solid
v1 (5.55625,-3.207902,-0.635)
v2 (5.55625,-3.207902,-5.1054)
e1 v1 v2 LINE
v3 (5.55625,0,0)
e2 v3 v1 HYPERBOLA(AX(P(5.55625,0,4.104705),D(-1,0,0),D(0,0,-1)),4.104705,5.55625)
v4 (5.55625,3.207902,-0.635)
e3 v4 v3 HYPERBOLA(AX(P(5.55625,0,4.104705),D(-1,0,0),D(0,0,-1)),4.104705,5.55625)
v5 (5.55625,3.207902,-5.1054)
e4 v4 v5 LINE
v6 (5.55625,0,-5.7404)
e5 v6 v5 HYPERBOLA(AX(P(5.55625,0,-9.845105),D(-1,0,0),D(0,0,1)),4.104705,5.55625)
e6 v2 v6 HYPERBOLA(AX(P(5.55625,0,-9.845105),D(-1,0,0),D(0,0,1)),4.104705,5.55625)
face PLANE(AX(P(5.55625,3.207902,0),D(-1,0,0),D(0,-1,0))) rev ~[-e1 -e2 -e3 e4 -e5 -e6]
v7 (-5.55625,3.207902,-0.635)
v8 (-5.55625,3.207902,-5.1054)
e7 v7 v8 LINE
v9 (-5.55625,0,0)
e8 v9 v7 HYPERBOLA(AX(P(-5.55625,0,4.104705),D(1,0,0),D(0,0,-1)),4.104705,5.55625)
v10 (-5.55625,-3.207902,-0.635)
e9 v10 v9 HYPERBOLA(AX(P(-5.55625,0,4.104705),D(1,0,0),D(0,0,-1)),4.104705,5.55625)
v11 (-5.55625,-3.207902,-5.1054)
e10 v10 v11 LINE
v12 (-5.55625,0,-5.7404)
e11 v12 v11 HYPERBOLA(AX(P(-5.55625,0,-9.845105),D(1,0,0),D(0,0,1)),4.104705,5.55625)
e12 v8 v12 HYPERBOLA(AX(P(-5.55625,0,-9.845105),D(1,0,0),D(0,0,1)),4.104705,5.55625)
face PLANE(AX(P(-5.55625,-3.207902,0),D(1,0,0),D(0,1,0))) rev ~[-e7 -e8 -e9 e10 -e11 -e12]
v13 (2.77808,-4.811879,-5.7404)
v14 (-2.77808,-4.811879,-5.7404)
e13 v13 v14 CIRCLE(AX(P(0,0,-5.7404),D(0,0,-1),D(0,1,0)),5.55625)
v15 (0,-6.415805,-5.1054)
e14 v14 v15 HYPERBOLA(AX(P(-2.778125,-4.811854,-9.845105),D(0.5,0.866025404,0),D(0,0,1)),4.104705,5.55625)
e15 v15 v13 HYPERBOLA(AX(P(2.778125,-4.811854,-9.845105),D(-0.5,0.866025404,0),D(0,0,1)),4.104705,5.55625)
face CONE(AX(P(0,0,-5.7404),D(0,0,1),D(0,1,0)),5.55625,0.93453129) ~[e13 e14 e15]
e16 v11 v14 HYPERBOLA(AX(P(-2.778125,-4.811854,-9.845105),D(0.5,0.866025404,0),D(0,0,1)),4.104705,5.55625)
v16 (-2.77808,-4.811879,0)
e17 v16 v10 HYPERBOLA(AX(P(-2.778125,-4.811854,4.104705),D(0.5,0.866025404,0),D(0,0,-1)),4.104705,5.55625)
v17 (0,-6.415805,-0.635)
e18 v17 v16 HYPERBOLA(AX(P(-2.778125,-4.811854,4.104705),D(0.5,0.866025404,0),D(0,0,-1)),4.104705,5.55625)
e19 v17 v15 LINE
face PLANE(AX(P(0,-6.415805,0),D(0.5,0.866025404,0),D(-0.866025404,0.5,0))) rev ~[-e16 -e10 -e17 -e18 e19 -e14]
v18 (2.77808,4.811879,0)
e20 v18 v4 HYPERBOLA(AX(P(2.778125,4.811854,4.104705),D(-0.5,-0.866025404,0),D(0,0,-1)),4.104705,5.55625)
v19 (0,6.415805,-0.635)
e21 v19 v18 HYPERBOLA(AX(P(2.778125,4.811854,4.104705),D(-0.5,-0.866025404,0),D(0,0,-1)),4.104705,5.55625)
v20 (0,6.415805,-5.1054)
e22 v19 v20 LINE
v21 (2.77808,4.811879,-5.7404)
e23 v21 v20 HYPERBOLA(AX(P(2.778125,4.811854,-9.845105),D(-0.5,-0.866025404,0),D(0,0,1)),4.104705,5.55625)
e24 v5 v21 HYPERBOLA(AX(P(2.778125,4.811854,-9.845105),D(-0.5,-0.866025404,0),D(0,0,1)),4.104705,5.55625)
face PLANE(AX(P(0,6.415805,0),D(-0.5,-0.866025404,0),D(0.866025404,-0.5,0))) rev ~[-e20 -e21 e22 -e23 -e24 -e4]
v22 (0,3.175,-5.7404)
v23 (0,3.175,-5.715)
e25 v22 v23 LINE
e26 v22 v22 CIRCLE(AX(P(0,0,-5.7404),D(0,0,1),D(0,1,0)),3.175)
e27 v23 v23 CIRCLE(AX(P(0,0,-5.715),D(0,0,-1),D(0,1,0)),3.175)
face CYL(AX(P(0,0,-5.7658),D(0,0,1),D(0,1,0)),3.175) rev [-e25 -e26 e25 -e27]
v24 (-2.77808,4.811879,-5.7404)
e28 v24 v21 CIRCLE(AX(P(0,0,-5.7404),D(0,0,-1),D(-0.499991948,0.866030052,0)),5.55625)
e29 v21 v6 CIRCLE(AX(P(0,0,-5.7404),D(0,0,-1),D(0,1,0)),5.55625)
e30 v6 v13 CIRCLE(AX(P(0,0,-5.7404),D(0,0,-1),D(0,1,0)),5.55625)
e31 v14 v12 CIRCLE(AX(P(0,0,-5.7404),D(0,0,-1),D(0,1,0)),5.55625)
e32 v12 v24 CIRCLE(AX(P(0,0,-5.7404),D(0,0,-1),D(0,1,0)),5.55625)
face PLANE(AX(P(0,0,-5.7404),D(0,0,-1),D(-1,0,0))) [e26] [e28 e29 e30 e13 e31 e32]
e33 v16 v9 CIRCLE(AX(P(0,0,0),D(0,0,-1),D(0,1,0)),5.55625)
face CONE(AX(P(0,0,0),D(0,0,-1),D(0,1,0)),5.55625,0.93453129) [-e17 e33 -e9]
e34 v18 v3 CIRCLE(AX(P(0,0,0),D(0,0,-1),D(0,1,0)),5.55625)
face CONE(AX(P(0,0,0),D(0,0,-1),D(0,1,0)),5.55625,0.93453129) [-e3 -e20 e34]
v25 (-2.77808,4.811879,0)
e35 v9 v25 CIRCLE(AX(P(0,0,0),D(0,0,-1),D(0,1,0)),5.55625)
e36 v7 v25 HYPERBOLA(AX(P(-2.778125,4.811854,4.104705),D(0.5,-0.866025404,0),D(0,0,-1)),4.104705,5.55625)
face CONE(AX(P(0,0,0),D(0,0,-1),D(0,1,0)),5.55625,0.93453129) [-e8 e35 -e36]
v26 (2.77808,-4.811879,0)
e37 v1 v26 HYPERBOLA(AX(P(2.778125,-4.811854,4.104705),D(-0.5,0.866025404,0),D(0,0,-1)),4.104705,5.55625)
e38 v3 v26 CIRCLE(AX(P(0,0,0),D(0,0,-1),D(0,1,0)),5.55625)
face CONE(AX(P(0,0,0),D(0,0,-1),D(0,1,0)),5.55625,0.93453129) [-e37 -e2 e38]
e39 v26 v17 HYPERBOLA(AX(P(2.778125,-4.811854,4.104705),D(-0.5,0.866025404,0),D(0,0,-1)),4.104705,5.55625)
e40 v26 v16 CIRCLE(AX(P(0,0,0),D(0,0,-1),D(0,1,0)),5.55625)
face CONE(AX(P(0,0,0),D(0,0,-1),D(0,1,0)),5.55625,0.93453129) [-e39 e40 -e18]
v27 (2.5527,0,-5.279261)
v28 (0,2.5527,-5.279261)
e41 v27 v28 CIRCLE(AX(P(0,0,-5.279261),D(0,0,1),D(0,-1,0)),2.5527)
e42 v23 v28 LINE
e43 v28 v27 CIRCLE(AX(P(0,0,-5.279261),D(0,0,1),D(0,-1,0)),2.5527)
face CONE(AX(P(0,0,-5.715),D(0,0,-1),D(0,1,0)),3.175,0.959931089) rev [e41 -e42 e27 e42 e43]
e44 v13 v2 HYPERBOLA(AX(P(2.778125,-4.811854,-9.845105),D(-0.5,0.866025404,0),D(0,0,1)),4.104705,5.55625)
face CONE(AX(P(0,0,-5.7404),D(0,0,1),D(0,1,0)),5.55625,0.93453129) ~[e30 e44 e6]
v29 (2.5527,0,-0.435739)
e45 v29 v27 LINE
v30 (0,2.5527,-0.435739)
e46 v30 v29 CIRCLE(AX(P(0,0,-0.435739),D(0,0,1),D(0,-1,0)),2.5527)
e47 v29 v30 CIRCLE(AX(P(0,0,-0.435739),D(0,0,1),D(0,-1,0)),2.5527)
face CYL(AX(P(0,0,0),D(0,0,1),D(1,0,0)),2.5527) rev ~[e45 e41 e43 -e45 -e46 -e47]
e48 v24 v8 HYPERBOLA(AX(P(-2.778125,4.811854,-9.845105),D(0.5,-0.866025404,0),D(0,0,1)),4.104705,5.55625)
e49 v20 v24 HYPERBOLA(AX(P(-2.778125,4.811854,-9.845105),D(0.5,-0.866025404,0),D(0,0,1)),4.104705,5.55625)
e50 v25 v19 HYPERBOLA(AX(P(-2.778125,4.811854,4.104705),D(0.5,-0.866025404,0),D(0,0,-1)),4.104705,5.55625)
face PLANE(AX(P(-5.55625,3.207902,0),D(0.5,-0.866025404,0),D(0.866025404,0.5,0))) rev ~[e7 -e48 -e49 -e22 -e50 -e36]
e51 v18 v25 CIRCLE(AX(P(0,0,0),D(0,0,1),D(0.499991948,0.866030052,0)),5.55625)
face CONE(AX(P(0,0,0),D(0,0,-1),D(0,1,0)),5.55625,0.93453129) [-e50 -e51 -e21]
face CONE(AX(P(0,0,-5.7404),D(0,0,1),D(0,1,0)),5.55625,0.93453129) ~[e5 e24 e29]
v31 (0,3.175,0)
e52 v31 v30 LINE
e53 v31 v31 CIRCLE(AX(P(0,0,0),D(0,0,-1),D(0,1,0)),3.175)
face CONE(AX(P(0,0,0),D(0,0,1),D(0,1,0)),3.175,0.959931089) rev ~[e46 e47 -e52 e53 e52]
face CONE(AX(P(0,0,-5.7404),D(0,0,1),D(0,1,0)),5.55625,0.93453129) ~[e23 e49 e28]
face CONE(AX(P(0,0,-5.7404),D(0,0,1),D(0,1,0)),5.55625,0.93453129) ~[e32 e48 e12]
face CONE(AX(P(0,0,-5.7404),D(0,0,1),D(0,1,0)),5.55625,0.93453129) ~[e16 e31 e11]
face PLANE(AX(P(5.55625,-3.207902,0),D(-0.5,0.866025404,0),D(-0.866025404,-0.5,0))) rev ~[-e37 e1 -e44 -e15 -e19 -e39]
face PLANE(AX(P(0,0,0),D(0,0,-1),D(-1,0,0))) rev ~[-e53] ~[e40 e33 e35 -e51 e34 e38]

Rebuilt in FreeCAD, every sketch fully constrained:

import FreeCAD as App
import Part
import Sketcher

V = App.Vector
Q = App.Units.Quantity

doc = App.newDocument("Part")
params = doc.addObject("Spreadsheet::Sheet", "Params")
for row, (alias, value) in enumerate([
    ("sketch1_diameter", "0.201 in"),
    ("pad1_length", "0.226 in"),
    ("sketch2_width", "0.5 in"),
    ("sketch2_height", "0.525 in"),
    ("groove_angle", "360 deg"),
    ("sketch3_height", "0.002 in"),
    ("groove2_angle", "360 deg"),
], start=1):
    params.set(f"A{row}", alias)
    params.set(f"B{row}", "=" + value)
    params.setAlias(f"B{row}", alias)

body = doc.addObject("PartDesign::Body", "Body")

# Sketch on XY plane
sketch1 = body.newObject("Sketcher::SketchObject", "Sketch")
sketch1.AttachmentSupport = (doc.getObject("XY_Plane"), [""])
sketch1.MapMode = "FlatFace"
sketch1.addGeometry([
    Part.LineSegment(V(5.55625, -3.207902, 0), V(5.55625, 3.207902, 0)),  # 0
    Part.LineSegment(V(5.55625, 3.207902, 0), V(0, 6.415805, 0)),  # 1
    Part.LineSegment(V(0, 6.415805, 0), V(-5.55625, 3.207902, 0)),  # 2
    Part.LineSegment(V(-5.55625, 3.207902, 0), V(-5.55625, -3.207902, 0)),  # 3
    Part.LineSegment(V(-5.55625, -3.207902, 0), V(0, -6.415805, 0)),  # 4
    Part.LineSegment(V(0, -6.415805, 0), V(5.55625, -3.207902, 0)),  # 5
    Part.Circle(V(0, 0, 0), V(0, 0, 1), 2.5527),  # 6
], False)
sketch1.addConstraint([
    Sketcher.Constraint("Coincident", 0, 2, 1, 1),
    Sketcher.Constraint("Coincident", 1, 2, 2, 1),
    Sketcher.Constraint("Coincident", 2, 2, 3, 1),
    Sketcher.Constraint("Coincident", 3, 2, 4, 1),
    Sketcher.Constraint("Coincident", 4, 2, 5, 1),
    Sketcher.Constraint("Coincident", 5, 2, 0, 1),
    Sketcher.Constraint("Vertical", 0),
    Sketcher.Constraint("Vertical", 3),
    Sketcher.Constraint("Coincident", 6, 3, -1, 1),
    Sketcher.Constraint("Symmetric", 0, 2, 3, 2, -1, 1),
    Sketcher.Constraint("Symmetric", 1, 2, 4, 2, -1, 1),
    Sketcher.Constraint("PointOnObject", 1, 2, -2),
    Sketcher.Constraint("Parallel", 2, 5),
    Sketcher.Constraint("Horizontal", 0, 2, 2, 2),
    Sketcher.Constraint("Diameter", 6, Q("0.201 in")),
    Sketcher.Constraint("Angle", 1, Q("150 deg")),
    Sketcher.Constraint("DistanceX", -1, 1, 0, 2, Q("0.21875 in")),
    Sketcher.Constraint("DistanceY", 0, 1, 0, 2, Q("6.415805 mm")),
])
sketch1.setExpression("Constraints[14]", "Params.sketch1_diameter")
pad1 = body.newObject("PartDesign::Pad", "Pad")
pad1.Profile = sketch1
pad1.setExpression("Length", "Params.pad1_length")
pad1.Reversed = True

# Sketch on YZ plane
sketch2 = body.newObject("Sketcher::SketchObject", "Sketch001")
sketch2.AttachmentSupport = (doc.getObject("YZ_Plane"), [""])
sketch2.MapMode = "FlatFace"
sketch2.addGeometry([
    Part.LineSegment(V(6.415805, -5.1054, 0), V(5.55625, -5.7404, 0)),  # 0
    Part.LineSegment(V(5.55625, -5.7404, 0), V(5.55625, -18.4404, 0)),  # 1
    Part.LineSegment(V(5.55625, -18.4404, 0), V(19.115805, -18.4404, 0)),  # 2
    Part.LineSegment(V(19.115805, -18.4404, 0), V(19.115805, -5.1054, 0)),  # 3
    Part.LineSegment(V(19.115805, -5.1054, 0), V(6.415805, -5.1054, 0)),  # 4
    Part.LineSegment(V(19.115805, -0.635, 0), V(19.115805, 12.7, 0)),  # 5
    Part.LineSegment(V(19.115805, 12.7, 0), V(5.55625, 12.7, 0)),  # 6
    Part.LineSegment(V(5.55625, 12.7, 0), V(5.55625, 0, 0)),  # 7
    Part.LineSegment(V(5.55625, 0, 0), V(6.415805, -0.635, 0)),  # 8
    Part.LineSegment(V(6.415805, -0.635, 0), V(19.115805, -0.635, 0)),  # 9
], False)
sketch2.addConstraint([
    Sketcher.Constraint("Coincident", 0, 2, 1, 1),
    Sketcher.Constraint("Coincident", 1, 2, 2, 1),
    Sketcher.Constraint("Coincident", 2, 2, 3, 1),
    Sketcher.Constraint("Coincident", 3, 2, 4, 1),
    Sketcher.Constraint("Coincident", 4, 2, 0, 1),
    Sketcher.Constraint("Coincident", 5, 2, 6, 1),
    Sketcher.Constraint("Coincident", 6, 2, 7, 1),
    Sketcher.Constraint("Coincident", 7, 2, 8, 1),
    Sketcher.Constraint("Coincident", 8, 2, 9, 1),
    Sketcher.Constraint("Coincident", 9, 2, 5, 1),
    Sketcher.Constraint("Vertical", 1),
    Sketcher.Constraint("Horizontal", 2),
    Sketcher.Constraint("Vertical", 3),
    Sketcher.Constraint("Horizontal", 4),
    Sketcher.Constraint("Vertical", 5),
    Sketcher.Constraint("Horizontal", 6),
    Sketcher.Constraint("Vertical", 7),
    Sketcher.Constraint("Horizontal", 9),
    Sketcher.Constraint("PointOnObject", 7, 2, -1),
    Sketcher.Constraint("Vertical", 3, 2, 5, 2),
    Sketcher.Constraint("Vertical", 1, 2, 6, 2),
    Sketcher.Constraint("Vertical", 4, 2, 8, 2),
    Sketcher.Constraint("Equal", 9, 1),
    Sketcher.Constraint("Equal", 3, 5),
    Sketcher.Constraint("Equal", 1, 7),
    Sketcher.Constraint("DistanceX", 4, 2, 4, 1, Q("0.5 in")),
    Sketcher.Constraint("DistanceY", 3, 1, 3, 2, Q("0.525 in")),
    Sketcher.Constraint("DistanceX", -1, 1, 0, 2, Q("0.21875 in")),
    Sketcher.Constraint("DistanceY", 0, 2, -1, 1, Q("0.226 in")),
    Sketcher.Constraint("Distance", 0, Q("1.068672 mm")),
])
sketch2.setExpression("Constraints[25]", "Params.sketch2_width")
sketch2.setExpression("Constraints[26]", "Params.sketch2_height")
groove = body.newObject("PartDesign::Groove", "Groove")
groove.Profile = sketch2
groove.ReferenceAxis = (sketch2, ["V_Axis"])
groove.setExpression("Angle", "Params.groove_angle")

# Sketch on YZ plane
sketch3 = body.newObject("Sketcher::SketchObject", "Sketch002")
sketch3.AttachmentSupport = (doc.getObject("YZ_Plane"), [""])
sketch3.MapMode = "FlatFace"
sketch3.addGeometry([
    Part.LineSegment(V(3.175, -5.715, 0), V(2.49047, -5.235687, 0)),  # 0
    Part.LineSegment(V(2.49047, -5.235687, 0), V(2.49047, -5.7658, 0)),  # 1
    Part.LineSegment(V(2.49047, -5.7658, 0), V(3.175, -5.7658, 0)),  # 2
    Part.LineSegment(V(3.175, -5.7658, 0), V(3.175, -5.715, 0)),  # 3
    Part.LineSegment(V(3.175, 0, 0), V(3.175, 0.0508, 0)),  # 4
    Part.LineSegment(V(3.175, 0.0508, 0), V(2.49047, 0.0508, 0)),  # 5
    Part.LineSegment(V(2.49047, 0.0508, 0), V(2.49047, -0.479313, 0)),  # 6
    Part.LineSegment(V(2.49047, -0.479313, 0), V(3.175, 0, 0)),  # 7
], False)
sketch3.addConstraint([
    Sketcher.Constraint("Coincident", 0, 2, 1, 1),
    Sketcher.Constraint("Coincident", 1, 2, 2, 1),
    Sketcher.Constraint("Coincident", 2, 2, 3, 1),
    Sketcher.Constraint("Coincident", 3, 2, 0, 1),
    Sketcher.Constraint("Coincident", 4, 2, 5, 1),
    Sketcher.Constraint("Coincident", 5, 2, 6, 1),
    Sketcher.Constraint("Coincident", 6, 2, 7, 1),
    Sketcher.Constraint("Coincident", 7, 2, 4, 1),
    Sketcher.Constraint("Vertical", 1),
    Sketcher.Constraint("Horizontal", 2),
    Sketcher.Constraint("Vertical", 3),
    Sketcher.Constraint("Vertical", 4),
    Sketcher.Constraint("Horizontal", 5),
    Sketcher.Constraint("Vertical", 6),
    Sketcher.Constraint("PointOnObject", 7, 2, -1),
    Sketcher.Constraint("Vertical", 3, 2, 4, 2),
    Sketcher.Constraint("Vertical", 1, 2, 5, 2),
    Sketcher.Constraint("Equal", 3, 4),
    Sketcher.Constraint("Equal", 1, 6),
    Sketcher.Constraint("Angle", 0, Q("145 deg")),
    Sketcher.Constraint("DistanceY", 3, 1, 3, 2, Q("0.002 in")),
    Sketcher.Constraint("DistanceY", 1, 2, -1, 1, Q("0.227 in")),
    Sketcher.Constraint("DistanceX", -1, 1, 2, 2, Q("0.125 in")),
    Sketcher.Constraint("Distance", 0, Q("0.0328999 in")),
])
sketch3.setExpression("Constraints[20]", "Params.sketch3_height")
groove2 = body.newObject("PartDesign::Groove", "Groove001")
groove2.Profile = sketch3
groove2.ReferenceAxis = (sketch3, ["V_Axis"])
groove2.setExpression("Angle", "Params.groove2_angle")

doc.recompute()
